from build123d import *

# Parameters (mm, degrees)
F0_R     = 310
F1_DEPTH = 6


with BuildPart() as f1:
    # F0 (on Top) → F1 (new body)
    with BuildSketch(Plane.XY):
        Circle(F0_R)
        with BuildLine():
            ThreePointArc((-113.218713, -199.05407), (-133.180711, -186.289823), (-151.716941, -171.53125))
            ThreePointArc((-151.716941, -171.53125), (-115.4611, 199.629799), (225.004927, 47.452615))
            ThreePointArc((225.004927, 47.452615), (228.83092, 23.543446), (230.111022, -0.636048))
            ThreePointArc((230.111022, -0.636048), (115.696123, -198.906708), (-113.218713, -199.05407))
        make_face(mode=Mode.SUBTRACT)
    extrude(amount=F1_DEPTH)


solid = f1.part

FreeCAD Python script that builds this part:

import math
import FreeCAD as App
import Part
import Sketcher
from FreeCAD import Vector
Q = App.Units.Quantity

doc = App.newDocument("Part")
body = doc.addObject("PartDesign::Body", "Body")

sketch1 = body.newObject("Sketcher::SketchObject", "Sketch")
sketch1.AttachmentSupport = (doc.getObject("XY_Plane"), [""])
sketch1.MapMode = "FlatFace"
sketch1.addGeometry(Part.Circle(Vector(0, 0, 0), Vector(0, 0, 1), 310), False)
sketch1.addGeometry(Part.ArcOfCircle(Part.Circle(Vector(1.111022, -0.636048, 0), Vector(0, 0, 1), 229), math.radians(-119.950822), math.radians(0)), False)
sketch1.addGeometry(Part.ArcOfCircle(Part.Circle(Vector(-0.000025, -0.000033, 0), Vector(0, 0, 1), 228.999959), math.radians(-131.492301), math.radians(-119.630512)), False)
sketch1.addGeometry(Part.ArcOfCircle(Part.Circle(Vector(0, 1, 0), Vector(0, 0, 1), 229.75), math.radians(11.664917), math.radians(228.672921)), False)
sketch1.addGeometry(Part.ArcOfCircle(Part.Circle(Vector(1.110933, -0.636055, 0), Vector(0, 0, 1), 229.000089), math.radians(0.000002), math.radians(12.122007)), False)
sketch1.addConstraint(Sketcher.Constraint("Coincident", 1, 1, 2, 2))
sketch1.addConstraint(Sketcher.Constraint("Coincident", 2, 1, 3, 2))
sketch1.addConstraint(Sketcher.Constraint("Coincident", 3, 1, 4, 2))
sketch1.addConstraint(Sketcher.Constraint("Coincident", 4, 1, 1, 2))
sketch1.addConstraint(Sketcher.Constraint("Coincident", 0, 3, -1, 1))
sketch1.addConstraint(Sketcher.Constraint("PointOnObject", 3, 3, -2))
sketch1.addConstraint(Sketcher.Constraint("Diameter", 0, Q("620 mm")))
sketch1.addConstraint(Sketcher.Constraint("Radius", 1, Q("229 mm")))
sketch1.addConstraint(Sketcher.Constraint("Radius", 3, Q("229.75 mm")))
sketch1.addConstraint(Sketcher.Constraint("DistanceY", -1, 1, 3, 3, Q("1 mm")))
sketch1.addConstraint(Sketcher.Constraint("Radius", 2, Q("228.999959 mm")))
sketch1.addConstraint(Sketcher.Constraint("Radius", 4, Q("229.000089 mm")))
sketch1.addConstraint(Sketcher.Constraint("DistanceY", 2, 1, 1, 3, Q("170.895202 mm")))
sketch1.addConstraint(Sketcher.Constraint("DistanceY", 1, 3, -1, 1, Q("0.636048 mm")))
sketch1.addConstraint(Sketcher.Constraint("DistanceY", 1, 1, -1, 1, Q("199.05407 mm")))
sketch1.addConstraint(Sketcher.Constraint("DistanceX", -1, 1, 4, 1, Q("230.111022 mm")))
sketch1.addConstraint(Sketcher.Constraint("DistanceY", 4, 3, 3, 1, Q("48.08867 mm")))
sketch1.addConstraint(Sketcher.Constraint("DistanceY", 4, 1, -1, 1, Q("0.636048 mm")))
pad1 = body.newObject("PartDesign::Pad", "Pad")
pad1.Profile = sketch1
pad1.Length = 6

doc.recompute()
